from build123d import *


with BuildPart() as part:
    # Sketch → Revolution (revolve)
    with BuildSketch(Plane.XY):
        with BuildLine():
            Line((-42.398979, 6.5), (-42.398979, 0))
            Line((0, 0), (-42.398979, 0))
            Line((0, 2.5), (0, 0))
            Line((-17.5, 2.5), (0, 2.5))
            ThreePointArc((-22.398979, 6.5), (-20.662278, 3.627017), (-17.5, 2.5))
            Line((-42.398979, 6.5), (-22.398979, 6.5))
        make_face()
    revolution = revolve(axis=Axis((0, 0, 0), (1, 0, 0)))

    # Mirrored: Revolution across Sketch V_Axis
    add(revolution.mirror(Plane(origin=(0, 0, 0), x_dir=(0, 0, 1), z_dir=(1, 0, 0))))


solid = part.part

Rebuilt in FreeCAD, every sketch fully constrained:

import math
import FreeCAD as App
import Part
import Sketcher

V = App.Vector

doc = App.newDocument("Part")
body = doc.addObject("PartDesign::Body", "Body")

sketch1 = body.newObject("Sketcher::SketchObject", "Sketch")
sketch1.AttachmentSupport = (doc.getObject("XY_Plane"), [""])
sketch1.MapMode = "FlatFace"
sketch1.addGeometry(Part.LineSegment(V(-42.398979, 6.5, 0), V(-42.398979, 0, 0)), False)
sketch1.addGeometry(Part.LineSegment(V(-42.398979, 0, 0), V(0, 0, 0)), False)
sketch1.addGeometry(Part.LineSegment(V(0, 0, 0), V(0, 2.5, 0)), False)
sketch1.addGeometry(Part.LineSegment(V(0, 2.5, 0), V(-17.5, 2.5, 0)), False)
sketch1.addGeometry(Part.ArcOfCircle(Part.Circle(V(-17.5, 7.499999, 0), V(0, 0, 1), 4.999999), math.radians(-168.463049), math.radians(-89.999997)), False)
sketch1.addGeometry(Part.LineSegment(V(-22.398979, 6.5, 0), V(-42.398979, 6.5, 0)), False)
sketch1.addConstraint(Sketcher.Constraint("Coincident", 0, 2, 1, 1))
sketch1.addConstraint(Sketcher.Constraint("Coincident", 1, 2, 2, 1))
sketch1.addConstraint(Sketcher.Constraint("Coincident", 2, 2, 3, 1))
sketch1.addConstraint(Sketcher.Constraint("Tangent", 3, 2, 4, 2))
sketch1.addConstraint(Sketcher.Constraint("Coincident", 4, 1, 5, 1))
sketch1.addConstraint(Sketcher.Constraint("Coincident", 5, 2, 0, 1))
sketch1.addConstraint(Sketcher.Constraint("Vertical", 0))
sketch1.addConstraint(Sketcher.Constraint("Horizontal", 1))
sketch1.addConstraint(Sketcher.Constraint("Vertical", 2))
sketch1.addConstraint(Sketcher.Constraint("Horizontal", 3))
sketch1.addConstraint(Sketcher.Constraint("Horizontal", 5))
sketch1.addConstraint(Sketcher.Constraint("Coincident", 1, 2, -1, 1))
sketch1.addConstraint(Sketcher.Constraint("Radius", 4, 4.999999))
sketch1.addConstraint(Sketcher.Constraint("DistanceX", 5, 2, 5, 1, 20.0))
sketch1.addConstraint(Sketcher.Constraint("DistanceX", 3, 2, 3, 1, 17.5))
sketch1.addConstraint(Sketcher.Constraint("DistanceY", 0, 2, 0, 1, 6.5))
sketch1.addConstraint(Sketcher.Constraint("DistanceY", 2, 1, 2, 2, 2.5))
revolution = body.newObject("PartDesign::Revolution", "Revolution")
revolution.Profile = sketch1
revolution.ReferenceAxis = (sketch1, ["H_Axis"])
revolution.Angle = 360
doc.recompute()

mirrored = body.newObject("PartDesign::Mirrored", "Mirrored")
mirrored.Originals = [revolution]
mirrored.MirrorPlane = (doc.getObject("YZ_Plane"), [""])
body.Tip = mirrored

doc.recompute()
